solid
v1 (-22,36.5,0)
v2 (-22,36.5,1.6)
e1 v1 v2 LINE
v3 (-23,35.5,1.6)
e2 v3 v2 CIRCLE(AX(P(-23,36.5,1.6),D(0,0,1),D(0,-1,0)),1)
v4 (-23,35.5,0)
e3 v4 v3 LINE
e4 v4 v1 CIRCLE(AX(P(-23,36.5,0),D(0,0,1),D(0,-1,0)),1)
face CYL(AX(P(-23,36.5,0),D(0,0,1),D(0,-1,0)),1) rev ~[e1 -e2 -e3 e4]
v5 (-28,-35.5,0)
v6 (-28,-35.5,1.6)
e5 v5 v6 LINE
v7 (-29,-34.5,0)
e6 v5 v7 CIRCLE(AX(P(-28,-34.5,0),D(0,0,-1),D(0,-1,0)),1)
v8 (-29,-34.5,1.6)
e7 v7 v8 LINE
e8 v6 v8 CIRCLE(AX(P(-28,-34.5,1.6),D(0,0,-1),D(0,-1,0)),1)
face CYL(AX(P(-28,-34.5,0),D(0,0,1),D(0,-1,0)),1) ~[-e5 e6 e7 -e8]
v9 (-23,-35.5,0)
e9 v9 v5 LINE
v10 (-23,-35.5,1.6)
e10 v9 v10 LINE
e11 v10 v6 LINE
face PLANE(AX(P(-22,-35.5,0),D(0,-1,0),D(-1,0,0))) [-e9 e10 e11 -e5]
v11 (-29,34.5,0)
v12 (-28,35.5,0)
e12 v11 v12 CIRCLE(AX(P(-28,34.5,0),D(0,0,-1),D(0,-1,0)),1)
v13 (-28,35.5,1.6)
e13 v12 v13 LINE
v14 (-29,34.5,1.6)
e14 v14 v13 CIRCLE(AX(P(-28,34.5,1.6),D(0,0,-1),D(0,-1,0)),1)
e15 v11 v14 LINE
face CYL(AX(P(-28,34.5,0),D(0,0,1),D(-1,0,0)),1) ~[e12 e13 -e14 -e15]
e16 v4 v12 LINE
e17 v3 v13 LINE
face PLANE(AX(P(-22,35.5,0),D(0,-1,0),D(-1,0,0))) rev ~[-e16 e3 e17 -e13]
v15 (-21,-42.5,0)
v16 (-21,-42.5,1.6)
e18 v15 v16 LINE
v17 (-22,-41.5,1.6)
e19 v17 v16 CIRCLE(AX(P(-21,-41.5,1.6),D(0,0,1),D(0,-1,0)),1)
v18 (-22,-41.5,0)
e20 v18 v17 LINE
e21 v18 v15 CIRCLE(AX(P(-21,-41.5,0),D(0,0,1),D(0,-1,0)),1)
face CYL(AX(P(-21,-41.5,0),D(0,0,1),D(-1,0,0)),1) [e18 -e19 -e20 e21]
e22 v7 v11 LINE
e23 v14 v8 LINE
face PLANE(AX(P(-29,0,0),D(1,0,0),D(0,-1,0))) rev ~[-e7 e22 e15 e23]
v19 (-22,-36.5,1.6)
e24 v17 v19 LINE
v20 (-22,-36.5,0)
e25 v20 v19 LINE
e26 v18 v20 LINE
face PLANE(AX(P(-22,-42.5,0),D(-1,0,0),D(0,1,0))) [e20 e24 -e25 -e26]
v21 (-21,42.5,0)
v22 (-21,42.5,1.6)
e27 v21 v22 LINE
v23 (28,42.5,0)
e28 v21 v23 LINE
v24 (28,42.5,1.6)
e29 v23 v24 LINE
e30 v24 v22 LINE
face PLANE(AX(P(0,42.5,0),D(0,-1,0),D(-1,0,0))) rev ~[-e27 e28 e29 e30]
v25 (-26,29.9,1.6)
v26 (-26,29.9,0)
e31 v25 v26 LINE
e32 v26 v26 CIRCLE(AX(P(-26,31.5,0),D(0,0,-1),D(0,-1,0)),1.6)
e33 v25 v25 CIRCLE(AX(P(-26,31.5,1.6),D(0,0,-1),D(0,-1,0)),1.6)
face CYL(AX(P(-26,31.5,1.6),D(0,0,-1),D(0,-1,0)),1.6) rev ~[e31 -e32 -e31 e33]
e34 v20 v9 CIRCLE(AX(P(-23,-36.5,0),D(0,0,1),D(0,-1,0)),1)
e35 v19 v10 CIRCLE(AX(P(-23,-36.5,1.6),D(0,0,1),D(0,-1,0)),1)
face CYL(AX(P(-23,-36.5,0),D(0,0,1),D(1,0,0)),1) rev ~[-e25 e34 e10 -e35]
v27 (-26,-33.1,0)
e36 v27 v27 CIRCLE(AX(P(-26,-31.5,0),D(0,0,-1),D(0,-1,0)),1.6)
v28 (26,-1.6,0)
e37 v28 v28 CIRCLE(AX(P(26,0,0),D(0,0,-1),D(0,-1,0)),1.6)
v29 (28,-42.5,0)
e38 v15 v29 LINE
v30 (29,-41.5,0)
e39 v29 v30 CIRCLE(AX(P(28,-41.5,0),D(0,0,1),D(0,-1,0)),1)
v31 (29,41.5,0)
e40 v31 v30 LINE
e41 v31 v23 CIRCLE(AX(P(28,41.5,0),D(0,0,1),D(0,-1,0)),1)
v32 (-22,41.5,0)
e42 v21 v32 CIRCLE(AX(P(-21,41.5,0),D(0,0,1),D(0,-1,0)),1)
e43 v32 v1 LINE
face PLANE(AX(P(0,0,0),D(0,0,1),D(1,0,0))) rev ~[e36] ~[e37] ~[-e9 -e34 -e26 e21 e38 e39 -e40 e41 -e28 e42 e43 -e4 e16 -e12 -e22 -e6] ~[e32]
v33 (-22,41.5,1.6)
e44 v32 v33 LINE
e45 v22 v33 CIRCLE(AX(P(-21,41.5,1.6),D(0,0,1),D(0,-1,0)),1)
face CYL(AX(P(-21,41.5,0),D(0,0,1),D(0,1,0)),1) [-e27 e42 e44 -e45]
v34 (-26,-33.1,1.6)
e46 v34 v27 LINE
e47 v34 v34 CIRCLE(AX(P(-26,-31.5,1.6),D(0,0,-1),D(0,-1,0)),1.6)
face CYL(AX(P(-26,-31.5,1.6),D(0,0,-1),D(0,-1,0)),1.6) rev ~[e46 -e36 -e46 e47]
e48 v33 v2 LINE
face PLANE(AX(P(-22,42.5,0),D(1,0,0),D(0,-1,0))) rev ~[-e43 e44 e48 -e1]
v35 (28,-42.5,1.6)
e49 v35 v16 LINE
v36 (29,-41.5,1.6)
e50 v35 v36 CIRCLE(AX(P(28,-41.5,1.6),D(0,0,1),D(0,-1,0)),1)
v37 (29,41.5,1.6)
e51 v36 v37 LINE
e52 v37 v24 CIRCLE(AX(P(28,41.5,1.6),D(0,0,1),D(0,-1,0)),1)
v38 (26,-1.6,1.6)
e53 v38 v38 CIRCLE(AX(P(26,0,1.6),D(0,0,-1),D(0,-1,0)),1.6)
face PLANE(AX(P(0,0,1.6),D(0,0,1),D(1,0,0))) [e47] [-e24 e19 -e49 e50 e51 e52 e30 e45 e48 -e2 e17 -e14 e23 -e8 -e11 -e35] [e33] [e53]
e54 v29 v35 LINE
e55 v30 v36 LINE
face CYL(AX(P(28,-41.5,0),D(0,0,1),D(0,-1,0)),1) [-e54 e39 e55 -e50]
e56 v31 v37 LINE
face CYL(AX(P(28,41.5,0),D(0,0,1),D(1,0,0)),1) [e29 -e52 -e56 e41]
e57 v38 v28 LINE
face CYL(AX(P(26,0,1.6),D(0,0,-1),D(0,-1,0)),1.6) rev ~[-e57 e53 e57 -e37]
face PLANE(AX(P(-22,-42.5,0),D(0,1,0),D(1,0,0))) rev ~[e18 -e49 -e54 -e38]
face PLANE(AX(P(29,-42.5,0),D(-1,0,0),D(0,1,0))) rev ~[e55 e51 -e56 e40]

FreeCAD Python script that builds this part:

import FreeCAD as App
import Part
import Sketcher

V = App.Vector
Q = App.Units.Quantity


def edges_at(feature, points):
    """Names of the edges that pass closest to the given points."""
    edges = feature.Shape.Edges
    near = lambda p: min(range(len(edges)), key=lambda i: edges[i].distToShape(Part.Vertex(*p))[0])
    return sorted({f"Edge{near(p) + 1}" for p in points})

doc = App.newDocument("Part")
body = doc.addObject("PartDesign::Body", "Body")

# Sketch on XY plane
sketch1 = doc.addObject("Sketcher::SketchObject", "Sketch")
body.addObject(sketch1)
sketch1.AttachmentSupport = (doc.XY_Plane, [""])
sketch1.MapMode = "FlatFace"
sketch1.addGeometry(Part.LineSegment(V(-22, -35.5, 0), V(-22, -42.5, 0)), False)
sketch1.addGeometry(Part.LineSegment(V(-22, -42.5, 0), V(29, -42.5, 0)), False)
sketch1.addGeometry(Part.LineSegment(V(29, -42.5, 0), V(29, 42.5, 0)), False)
sketch1.addGeometry(Part.LineSegment(V(29, 42.5, 0), V(-22, 42.5, 0)), False)
sketch1.addGeometry(Part.LineSegment(V(-22, 42.5, 0), V(-22, 35.5, 0)), False)
sketch1.addGeometry(Part.LineSegment(V(-22, 35.5, 0), V(-29, 35.5, 0)), False)
sketch1.addGeometry(Part.LineSegment(V(-29, 35.5, 0), V(-29, -35.5, 0)), False)
sketch1.addGeometry(Part.LineSegment(V(-29, -35.5, 0), V(-22, -35.5, 0)), False)
sketch1.addConstraint(Sketcher.Constraint("Coincident", 0, 2, 1, 1))
sketch1.addConstraint(Sketcher.Constraint("Coincident", 1, 2, 2, 1))
sketch1.addConstraint(Sketcher.Constraint("Coincident", 2, 2, 3, 1))
sketch1.addConstraint(Sketcher.Constraint("Coincident", 3, 2, 4, 1))
sketch1.addConstraint(Sketcher.Constraint("Coincident", 4, 2, 5, 1))
sketch1.addConstraint(Sketcher.Constraint("Coincident", 5, 2, 6, 1))
sketch1.addConstraint(Sketcher.Constraint("Coincident", 6, 2, 7, 1))
sketch1.addConstraint(Sketcher.Constraint("Coincident", 7, 2, 0, 1))
sketch1.addConstraint(Sketcher.Constraint("Vertical", 0))
sketch1.addConstraint(Sketcher.Constraint("Horizontal", 1))
sketch1.addConstraint(Sketcher.Constraint("Vertical", 2))
sketch1.addConstraint(Sketcher.Constraint("Horizontal", 3))
sketch1.addConstraint(Sketcher.Constraint("Vertical", 4))
sketch1.addConstraint(Sketcher.Constraint("Horizontal", 5))
sketch1.addConstraint(Sketcher.Constraint("Vertical", 6))
sketch1.addConstraint(Sketcher.Constraint("Horizontal", 7))
sketch1.addConstraint(Sketcher.Constraint("Symmetric", 0, 2, 3, 2, -1))
sketch1.addConstraint(Sketcher.Constraint("Equal", 7, 0))
sketch1.addConstraint(Sketcher.Constraint("Equal", 0, 4))
sketch1.addConstraint(Sketcher.Constraint("DistanceX", 5, 2, 5, 1, Q("7 mm")))
sketch1.addConstraint(Sketcher.Constraint("DistanceY", 2, 1, 2, 2, Q("85 mm")))
sketch1.addConstraint(Sketcher.Constraint("DistanceX", 5, 2, 2, 2, Q("58 mm")))
sketch1.addConstraint(Sketcher.Constraint("DistanceX", 0, 2, -1, 1, Q("22 mm")))
pad1 = doc.addObject("PartDesign::Pad", "Pad")
body.addObject(pad1)
pad1.Profile = sketch1
pad1.Length = 1.6

# Sketch on XY plane
sketch2 = doc.addObject("Sketcher::SketchObject", "Sketch001")
body.addObject(sketch2)
sketch2.AttachmentSupport = (doc.XY_Plane, [""])
sketch2.MapMode = "FlatFace"
sketch2.AttachmentOffset = App.Placement(V(0, 0, 1.6), App.Rotation())
sketch2.addGeometry(Part.Circle(V(-26, 31.5, 0), V(0, 0, 1), 1.6), False)
sketch2.addGeometry(Part.Circle(V(-26, -31.5, 0), V(0, 0, 1), 1.6), False)
sketch2.addGeometry(Part.Circle(V(26, 0, 0), V(0, 0, 1), 1.6), False)
sketch2.addConstraint(Sketcher.Constraint("Equal", 0, 1))
sketch2.addConstraint(Sketcher.Constraint("Equal", 1, 2))
sketch2.addConstraint(Sketcher.Constraint("Symmetric", 0, 3, 1, 3, -1))
sketch2.addConstraint(Sketcher.Constraint("PointOnObject", 2, 3, -1))
sketch2.addConstraint(Sketcher.Constraint("Diameter", 0, Q("3.2 mm")))
sketch2.addConstraint(Sketcher.Constraint("DistanceX", 0, 3, -1, 1, Q("26 mm")))
sketch2.addConstraint(Sketcher.Constraint("DistanceX", -1, 1, 2, 3, Q("26 mm")))
sketch2.addConstraint(Sketcher.Constraint("DistanceY", 1, 3, 0, 3, Q("63 mm")))
doc.recompute()
hole = doc.addObject("PartDesign::Hole", "Hole")
body.addObject(hole)
hole.Profile = sketch2
hole.ThreadType = "None"
hole.Diameter = 3.2
hole.DepthType = "ThroughAll"
doc.recompute()

fillet = doc.addObject("PartDesign::Fillet", "Fillet")
body.addObject(fillet)
fillet.Base = (hole, edges_at(hole, [
    (29, -42.5, 0.8),
    (29, 42.5, 0.8),
    (-22, -35.5, 0.8),
    (-22, -42.5, 0.8),
    (-29, -35.5, 0.8),
    (-29, 35.5, 0.8),
    (-22, 35.5, 0.8),
    (-22, 42.5, 0.8),
]))
fillet.Radius = 1

doc.recompute()
